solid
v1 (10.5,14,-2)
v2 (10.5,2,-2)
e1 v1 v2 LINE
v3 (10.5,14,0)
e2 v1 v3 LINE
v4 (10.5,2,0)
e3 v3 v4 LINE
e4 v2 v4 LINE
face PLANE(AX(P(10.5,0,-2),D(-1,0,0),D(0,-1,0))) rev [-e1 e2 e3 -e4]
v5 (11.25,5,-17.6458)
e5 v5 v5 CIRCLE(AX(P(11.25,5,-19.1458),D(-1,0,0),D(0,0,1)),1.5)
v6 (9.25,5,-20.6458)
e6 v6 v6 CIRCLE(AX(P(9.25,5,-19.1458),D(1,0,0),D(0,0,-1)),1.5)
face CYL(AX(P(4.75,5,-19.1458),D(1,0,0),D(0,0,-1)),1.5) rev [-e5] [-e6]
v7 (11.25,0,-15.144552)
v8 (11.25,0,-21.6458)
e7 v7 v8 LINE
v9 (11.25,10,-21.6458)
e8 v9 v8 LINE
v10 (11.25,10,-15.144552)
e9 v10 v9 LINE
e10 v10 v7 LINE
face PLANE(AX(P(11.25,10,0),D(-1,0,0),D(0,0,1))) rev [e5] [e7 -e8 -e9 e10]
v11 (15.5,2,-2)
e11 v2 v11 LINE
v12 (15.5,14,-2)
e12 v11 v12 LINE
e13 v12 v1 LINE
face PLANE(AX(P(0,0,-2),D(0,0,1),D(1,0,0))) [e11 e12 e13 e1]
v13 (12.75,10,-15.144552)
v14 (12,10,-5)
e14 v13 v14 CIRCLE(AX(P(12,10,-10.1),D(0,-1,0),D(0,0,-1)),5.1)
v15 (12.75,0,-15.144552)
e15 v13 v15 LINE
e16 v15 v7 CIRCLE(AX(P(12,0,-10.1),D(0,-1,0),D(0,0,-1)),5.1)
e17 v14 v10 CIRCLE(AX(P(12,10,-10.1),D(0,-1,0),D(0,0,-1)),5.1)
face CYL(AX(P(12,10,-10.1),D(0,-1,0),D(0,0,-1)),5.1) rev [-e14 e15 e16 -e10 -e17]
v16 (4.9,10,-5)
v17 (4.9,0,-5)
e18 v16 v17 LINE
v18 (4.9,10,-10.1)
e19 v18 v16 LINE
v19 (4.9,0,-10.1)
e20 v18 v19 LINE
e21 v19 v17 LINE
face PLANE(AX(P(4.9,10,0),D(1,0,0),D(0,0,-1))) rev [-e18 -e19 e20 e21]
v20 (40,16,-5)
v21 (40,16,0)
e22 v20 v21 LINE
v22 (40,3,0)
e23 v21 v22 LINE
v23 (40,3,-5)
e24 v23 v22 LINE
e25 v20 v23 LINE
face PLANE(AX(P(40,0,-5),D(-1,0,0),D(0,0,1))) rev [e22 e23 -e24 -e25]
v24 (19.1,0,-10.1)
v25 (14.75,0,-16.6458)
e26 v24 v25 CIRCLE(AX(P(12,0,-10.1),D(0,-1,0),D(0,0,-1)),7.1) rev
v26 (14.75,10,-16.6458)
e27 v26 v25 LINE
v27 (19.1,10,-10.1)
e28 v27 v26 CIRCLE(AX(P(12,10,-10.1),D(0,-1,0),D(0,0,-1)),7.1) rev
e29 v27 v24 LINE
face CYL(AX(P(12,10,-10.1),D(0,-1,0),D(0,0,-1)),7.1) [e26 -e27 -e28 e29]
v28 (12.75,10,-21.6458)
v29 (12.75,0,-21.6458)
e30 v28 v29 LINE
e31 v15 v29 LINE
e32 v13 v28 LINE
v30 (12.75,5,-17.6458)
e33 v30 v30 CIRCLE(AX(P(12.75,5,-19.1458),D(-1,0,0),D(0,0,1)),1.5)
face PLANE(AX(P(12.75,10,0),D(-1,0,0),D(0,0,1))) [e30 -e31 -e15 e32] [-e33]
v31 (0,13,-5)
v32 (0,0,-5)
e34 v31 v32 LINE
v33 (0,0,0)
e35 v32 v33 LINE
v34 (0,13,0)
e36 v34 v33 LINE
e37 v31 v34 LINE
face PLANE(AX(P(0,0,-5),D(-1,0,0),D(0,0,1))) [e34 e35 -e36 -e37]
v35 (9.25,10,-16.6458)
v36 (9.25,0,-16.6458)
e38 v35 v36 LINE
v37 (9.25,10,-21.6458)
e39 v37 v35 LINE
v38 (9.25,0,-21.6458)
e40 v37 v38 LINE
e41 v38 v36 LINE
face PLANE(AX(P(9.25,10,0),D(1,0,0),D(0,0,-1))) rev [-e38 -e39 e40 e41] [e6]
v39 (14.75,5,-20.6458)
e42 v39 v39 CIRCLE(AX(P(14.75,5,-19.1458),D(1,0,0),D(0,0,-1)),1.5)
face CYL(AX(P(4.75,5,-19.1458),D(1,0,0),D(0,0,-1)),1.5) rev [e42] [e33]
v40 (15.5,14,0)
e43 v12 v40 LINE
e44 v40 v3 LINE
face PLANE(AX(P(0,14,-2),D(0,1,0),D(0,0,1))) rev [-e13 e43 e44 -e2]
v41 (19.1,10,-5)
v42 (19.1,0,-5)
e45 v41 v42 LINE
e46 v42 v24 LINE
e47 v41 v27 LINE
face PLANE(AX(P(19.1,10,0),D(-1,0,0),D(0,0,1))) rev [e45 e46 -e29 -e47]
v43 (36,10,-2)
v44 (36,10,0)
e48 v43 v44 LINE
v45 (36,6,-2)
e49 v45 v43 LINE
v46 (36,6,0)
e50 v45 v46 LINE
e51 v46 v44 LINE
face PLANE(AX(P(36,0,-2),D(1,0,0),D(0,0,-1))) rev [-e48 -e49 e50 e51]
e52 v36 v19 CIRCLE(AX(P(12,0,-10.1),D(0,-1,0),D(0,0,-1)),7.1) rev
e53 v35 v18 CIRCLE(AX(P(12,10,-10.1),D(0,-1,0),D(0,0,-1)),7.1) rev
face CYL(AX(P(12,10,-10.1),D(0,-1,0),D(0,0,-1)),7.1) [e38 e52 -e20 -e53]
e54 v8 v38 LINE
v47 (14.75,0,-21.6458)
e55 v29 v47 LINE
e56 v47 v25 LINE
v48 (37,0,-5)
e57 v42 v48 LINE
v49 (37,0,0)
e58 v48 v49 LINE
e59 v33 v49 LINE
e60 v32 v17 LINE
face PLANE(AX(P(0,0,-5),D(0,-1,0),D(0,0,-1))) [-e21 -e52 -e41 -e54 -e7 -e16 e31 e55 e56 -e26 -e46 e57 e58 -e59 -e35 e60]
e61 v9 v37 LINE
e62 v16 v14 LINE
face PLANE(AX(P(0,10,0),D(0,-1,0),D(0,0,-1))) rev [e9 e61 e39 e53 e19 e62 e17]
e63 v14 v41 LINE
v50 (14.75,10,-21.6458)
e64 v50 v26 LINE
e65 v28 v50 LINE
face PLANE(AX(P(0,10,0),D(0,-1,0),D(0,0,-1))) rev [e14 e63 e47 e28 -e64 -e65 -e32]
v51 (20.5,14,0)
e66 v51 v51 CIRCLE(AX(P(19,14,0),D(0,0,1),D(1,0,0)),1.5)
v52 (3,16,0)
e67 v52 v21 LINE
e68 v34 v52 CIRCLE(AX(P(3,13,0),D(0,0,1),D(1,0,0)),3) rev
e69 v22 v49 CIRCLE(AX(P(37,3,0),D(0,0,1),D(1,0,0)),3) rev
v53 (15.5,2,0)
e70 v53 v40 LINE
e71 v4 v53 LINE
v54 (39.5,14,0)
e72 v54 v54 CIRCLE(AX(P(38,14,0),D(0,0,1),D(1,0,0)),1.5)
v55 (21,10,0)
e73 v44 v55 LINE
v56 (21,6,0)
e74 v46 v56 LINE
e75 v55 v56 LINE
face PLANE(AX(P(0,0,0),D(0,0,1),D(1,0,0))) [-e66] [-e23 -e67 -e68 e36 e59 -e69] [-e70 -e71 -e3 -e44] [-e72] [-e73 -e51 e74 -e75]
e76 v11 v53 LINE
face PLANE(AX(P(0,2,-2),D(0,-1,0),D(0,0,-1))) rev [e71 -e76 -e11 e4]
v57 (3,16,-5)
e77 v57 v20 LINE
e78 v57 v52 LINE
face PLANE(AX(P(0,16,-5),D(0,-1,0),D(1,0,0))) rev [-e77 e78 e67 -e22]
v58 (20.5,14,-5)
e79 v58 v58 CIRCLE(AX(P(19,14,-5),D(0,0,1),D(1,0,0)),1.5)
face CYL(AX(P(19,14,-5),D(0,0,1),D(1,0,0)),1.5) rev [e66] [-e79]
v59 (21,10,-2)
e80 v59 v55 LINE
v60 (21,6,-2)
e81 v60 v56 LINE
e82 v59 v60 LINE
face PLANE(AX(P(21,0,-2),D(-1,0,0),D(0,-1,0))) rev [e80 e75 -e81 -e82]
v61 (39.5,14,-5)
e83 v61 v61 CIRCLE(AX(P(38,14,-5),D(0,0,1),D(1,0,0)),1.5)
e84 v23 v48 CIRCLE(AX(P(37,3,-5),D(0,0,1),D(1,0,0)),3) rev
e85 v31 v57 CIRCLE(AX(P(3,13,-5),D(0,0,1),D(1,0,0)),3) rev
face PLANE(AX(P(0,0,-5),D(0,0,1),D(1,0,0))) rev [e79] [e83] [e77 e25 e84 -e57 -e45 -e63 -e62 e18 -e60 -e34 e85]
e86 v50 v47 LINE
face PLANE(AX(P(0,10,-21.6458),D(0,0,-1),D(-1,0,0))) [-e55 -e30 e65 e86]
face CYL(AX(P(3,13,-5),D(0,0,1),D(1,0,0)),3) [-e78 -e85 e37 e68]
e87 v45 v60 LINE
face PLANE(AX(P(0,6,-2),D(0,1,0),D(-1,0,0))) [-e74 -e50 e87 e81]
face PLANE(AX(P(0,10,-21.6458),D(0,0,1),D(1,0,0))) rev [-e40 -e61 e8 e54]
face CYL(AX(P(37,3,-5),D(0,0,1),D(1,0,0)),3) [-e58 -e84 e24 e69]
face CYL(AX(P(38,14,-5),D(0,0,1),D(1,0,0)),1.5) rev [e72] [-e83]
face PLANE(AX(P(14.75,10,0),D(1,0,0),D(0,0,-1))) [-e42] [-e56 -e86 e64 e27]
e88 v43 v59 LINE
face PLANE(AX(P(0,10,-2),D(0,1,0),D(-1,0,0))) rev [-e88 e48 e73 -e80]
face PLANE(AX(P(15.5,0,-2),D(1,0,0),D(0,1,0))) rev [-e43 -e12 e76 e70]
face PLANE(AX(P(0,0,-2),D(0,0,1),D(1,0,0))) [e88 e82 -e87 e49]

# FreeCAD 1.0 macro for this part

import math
import FreeCAD as App
import Part
import Sketcher
from FreeCAD import Vector
Q = App.Units.Quantity


def add_polygon(sketch, points):
    """Adds a closed chain of lines whose ends are joined by coincident constraints."""
    first, n = sketch.GeometryCount, len(points)
    for a, b in zip(points, points[1:] + points[:1]):
        sketch.addGeometry(Part.LineSegment(App.Vector(*a, 0), App.Vector(*b, 0)), False)
    for i in range(n):
        sketch.addConstraint(Sketcher.Constraint("Coincident", first + i, 2, first + (i + 1) % n, 1))

doc = App.newDocument("Part")
body = doc.addObject("PartDesign::Body", "Body")

# Sketch on XY plane
sketch1 = doc.addObject("Sketcher::SketchObject", "Sketch")
body.addObject(sketch1)
sketch1.AttachmentSupport = (doc.XY_Plane, [""])
sketch1.MapMode = "FlatFace"
sketch1.addGeometry([
    Part.ArcOfCircle(Part.Circle(Vector(37, 3, 0), Vector(0, 0, 1), 3), math.radians(-90), math.radians(0)),  # 0
    Part.LineSegment(Vector(40, 3, 0), Vector(40, 16, 0)),  # 1
    Part.LineSegment(Vector(40, 16, 0), Vector(3, 16, 0)),  # 2
    Part.ArcOfCircle(Part.Circle(Vector(3, 13, 0), Vector(0, 0, 1), 3), math.radians(90), math.radians(180)),  # 3
    Part.LineSegment(Vector(0, 13, 0), Vector(0, 0, 0)),  # 4
    Part.LineSegment(Vector(0, 0, 0), Vector(37, 0, 0)),  # 5
    Part.Circle(Vector(38, 14, 0), Vector(0, 0, 1), 1.5),  # 6
    Part.Circle(Vector(19, 14, 0), Vector(0, 0, 1), 1.5),  # 7
], False)
sketch1.addConstraint([
    Sketcher.Constraint("Tangent", 0, 2, 1, 1),
    Sketcher.Constraint("Coincident", 1, 2, 2, 1),
    Sketcher.Constraint("Tangent", 2, 2, 3, 1),
    Sketcher.Constraint("Tangent", 3, 2, 4, 1),
    Sketcher.Constraint("Coincident", 4, 2, 5, 1),
    Sketcher.Constraint("Tangent", 5, 2, 0, 1),
    Sketcher.Constraint("Vertical", 1),
    Sketcher.Constraint("Horizontal", 2),
    Sketcher.Constraint("Vertical", 4),
    Sketcher.Constraint("Horizontal", 5),
    Sketcher.Constraint("Coincident", 4, 2, -1, 1),
    Sketcher.Constraint("Equal", 0, 3),
    Sketcher.Constraint("Equal", 6, 7),
    Sketcher.Constraint("Horizontal", 6, 3, 7, 3),
    Sketcher.Constraint("Diameter", 6, Q("3 mm")),
    Sketcher.Constraint("Radius", 0, Q("3 mm")),
    Sketcher.Constraint("DistanceX", 2, 2, 2, 1, Q("37 mm")),
    Sketcher.Constraint("DistanceY", 1, 1, 1, 2, Q("13 mm")),
    Sketcher.Constraint("DistanceX", -1, 1, 6, 3, Q("38 mm")),
    Sketcher.Constraint("DistanceY", -1, 1, 6, 3, Q("14 mm")),
    Sketcher.Constraint("DistanceX", -1, 1, 7, 3, Q("19 mm")),
])
pad1 = doc.addObject("PartDesign::Pad", "Pad")
body.addObject(pad1)
pad1.Profile = sketch1
pad1.Length = 5
pad1.Reversed = True

# Sketch on XY plane
sketch2 = doc.addObject("Sketcher::SketchObject", "Sketch001")
body.addObject(sketch2)
sketch2.AttachmentSupport = (doc.XY_Plane, [""])
sketch2.MapMode = "FlatFace"
add_polygon(sketch2, [(10.5, 14), (10.5, 2), (15.5, 2), (15.5, 14)])  # lines 0-3
add_polygon(sketch2, [(21, 10), (21, 6), (36, 6), (36, 10)])  # lines 4-7
sketch2.addConstraint([
    Sketcher.Constraint("Vertical", 0),
    Sketcher.Constraint("Horizontal", 1),
    Sketcher.Constraint("Vertical", 2),
    Sketcher.Constraint("Horizontal", 3),
    Sketcher.Constraint("Vertical", 4),
    Sketcher.Constraint("Horizontal", 5),
    Sketcher.Constraint("Vertical", 6),
    Sketcher.Constraint("Horizontal", 7),
    Sketcher.Constraint("DistanceX", 1, 1, 1, 2, Q("5 mm")),
    Sketcher.Constraint("DistanceX", 5, 1, 5, 2, Q("15 mm")),
    Sketcher.Constraint("DistanceY", 0, 2, 0, 1, Q("12 mm")),
    Sketcher.Constraint("DistanceY", 4, 2, 4, 1, Q("4 mm")),
    Sketcher.Constraint("DistanceY", -1, 1, 0, 2, Q("2 mm")),
    Sketcher.Constraint("DistanceX", -1, 1, 4, 2, Q("21 mm")),
    Sketcher.Constraint("DistanceY", -1, 1, 4, 2, Q("6 mm")),
    Sketcher.Constraint("DistanceX", -1, 1, 0, 2, Q("10.5 mm")),
])
pocket1 = doc.addObject("PartDesign::Pocket", "Pocket")
body.addObject(pocket1)
pocket1.Profile = sketch2
pocket1.Length = 2

# Sketch on XZ plane
sketch3 = doc.addObject("Sketcher::SketchObject", "Sketch002")
body.addObject(sketch3)
sketch3.AttachmentSupport = (doc.XZ_Plane, [""])
sketch3.MapMode = "FlatFace"
sketch3.addGeometry([
    Part.LineSegment(Vector(19.1, -5, 0), Vector(12, -5, 0)),  # 0
    Part.ArcOfCircle(Part.Circle(Vector(12, -10.1, 0), Vector(0, 0, 1), 5.1), math.radians(-81.543481), math.radians(90)),  # 1
    Part.LineSegment(Vector(12.75, -15.144552, 0), Vector(12.75, -21.6458, 0)),  # 2
    Part.LineSegment(Vector(12.75, -21.6458, 0), Vector(14.75, -21.6458, 0)),  # 3
    Part.LineSegment(Vector(14.75, -21.6458, 0), Vector(14.75, -16.6458, 0)),  # 4
    Part.ArcOfCircle(Part.Circle(Vector(12, -10.1, 0), Vector(0, 0, 1), 7.1), math.radians(-67.211911), math.radians(0)),  # 5
    Part.LineSegment(Vector(19.1, -10.1, 0), Vector(19.1, -5, 0)),  # 6
    Part.LineSegment(Vector(12, -5, 0), Vector(4.9, -5, 0)),  # 7
    Part.LineSegment(Vector(4.9, -5, 0), Vector(4.9, -10.1, 0)),  # 8
    Part.ArcOfCircle(Part.Circle(Vector(12, -10.1, 0), Vector(0, 0, 1), 7.1), math.radians(180), math.radians(247.211911)),  # 9
    Part.LineSegment(Vector(9.25, -16.6458, 0), Vector(9.25, -21.6458, 0)),  # 10
    Part.LineSegment(Vector(9.25, -21.6458, 0), Vector(11.25, -21.6458, 0)),  # 11
    Part.LineSegment(Vector(11.25, -21.6458, 0), Vector(11.25, -15.144552, 0)),  # 12
    Part.ArcOfCircle(Part.Circle(Vector(12, -10.1, 0), Vector(0, 0, 1), 5.1), math.radians(90), math.radians(261.543481)),  # 13
], False)
sketch3.addConstraint([
    Sketcher.Constraint("Tangent", 0, 2, 1, 2),
    Sketcher.Constraint("Coincident", 1, 1, 2, 1),
    Sketcher.Constraint("Coincident", 2, 2, 3, 1),
    Sketcher.Constraint("Coincident", 3, 2, 4, 1),
    Sketcher.Constraint("Coincident", 4, 2, 5, 1),
    Sketcher.Constraint("Tangent", 5, 2, 6, 1),
    Sketcher.Constraint("Coincident", 6, 2, 0, 1),
    Sketcher.Constraint("Coincident", 7, 2, 8, 1),
    Sketcher.Constraint("Tangent", 8, 2, 9, 1),
    Sketcher.Constraint("Coincident", 9, 2, 10, 1),
    Sketcher.Constraint("Coincident", 10, 2, 11, 1),
    Sketcher.Constraint("Coincident", 11, 2, 12, 1),
    Sketcher.Constraint("Coincident", 12, 2, 13, 2),
    Sketcher.Constraint("Tangent", 13, 1, 7, 1),
    Sketcher.Constraint("Horizontal", 0),
    Sketcher.Constraint("Vertical", 2),
    Sketcher.Constraint("Horizontal", 3),
    Sketcher.Constraint("Vertical", 4),
    Sketcher.Constraint("Vertical", 6),
    Sketcher.Constraint("Horizontal", 7),
    Sketcher.Constraint("Vertical", 8),
    Sketcher.Constraint("Vertical", 10),
    Sketcher.Constraint("Horizontal", 11),
    Sketcher.Constraint("Vertical", 12),
    Sketcher.Constraint("Coincident", 5, 3, 1, 3),
    Sketcher.Constraint("Coincident", 9, 3, 1, 3),
    Sketcher.Constraint("Coincident", 13, 3, 1, 3),
    Sketcher.Constraint("Equal", 5, 9),
    Sketcher.Constraint("Equal", 1, 13),
    Sketcher.Constraint("Horizontal", 4, 2, 9, 2),
    Sketcher.Constraint("Horizontal", 3, 2, 10, 2),
    Sketcher.Constraint("Horizontal", 1, 1, 12, 2),
    Sketcher.Constraint("Radius", 1, Q("5.1 mm")),
    Sketcher.Constraint("Radius", 5, Q("7.1 mm")),
    Sketcher.Constraint("DistanceX", 3, 1, 3, 2, Q("2 mm")),
    Sketcher.Constraint("DistanceY", 4, 1, 4, 2, Q("5 mm")),
    Sketcher.Constraint("DistanceX", -1, 1, 1, 3, Q("12 mm")),
    Sketcher.Constraint("DistanceY", 0, 2, -1, 1, Q("5 mm")),
    Sketcher.Constraint("DistanceX", 9, 2, 1, 1, Q("3.5 mm")),
])
pad2 = doc.addObject("PartDesign::Pad", "Pad001")
body.addObject(pad2)
pad2.Profile = sketch3
pad2.Length = 10
pad2.Reversed = True

# Sketch on YZ plane
sketch4 = doc.addObject("Sketcher::SketchObject", "Sketch003")
body.addObject(sketch4)
sketch4.AttachmentSupport = (doc.YZ_Plane, [""])
sketch4.MapMode = "FlatFace"
sketch4.AttachmentOffset = App.Placement(Vector(0, 0, 14.75), App.Rotation())
sketch4.addGeometry(Part.Circle(Vector(5, -19.1458, 0), Vector(0, 0, 1), 1.5), False)
sketch4.addConstraint([
    Sketcher.Constraint("Diameter", 0, Q("3 mm")),
    Sketcher.Constraint("DistanceX", -1, 1, 0, 3, Q("5 mm")),
    Sketcher.Constraint("DistanceY", 0, 3, -1, 1, Q("19.1458 mm")),
])
pocket2 = doc.addObject("PartDesign::Pocket", "Pocket001")
body.addObject(pocket2)
pocket2.Profile = sketch4
pocket2.Length = 10

doc.recompute()
